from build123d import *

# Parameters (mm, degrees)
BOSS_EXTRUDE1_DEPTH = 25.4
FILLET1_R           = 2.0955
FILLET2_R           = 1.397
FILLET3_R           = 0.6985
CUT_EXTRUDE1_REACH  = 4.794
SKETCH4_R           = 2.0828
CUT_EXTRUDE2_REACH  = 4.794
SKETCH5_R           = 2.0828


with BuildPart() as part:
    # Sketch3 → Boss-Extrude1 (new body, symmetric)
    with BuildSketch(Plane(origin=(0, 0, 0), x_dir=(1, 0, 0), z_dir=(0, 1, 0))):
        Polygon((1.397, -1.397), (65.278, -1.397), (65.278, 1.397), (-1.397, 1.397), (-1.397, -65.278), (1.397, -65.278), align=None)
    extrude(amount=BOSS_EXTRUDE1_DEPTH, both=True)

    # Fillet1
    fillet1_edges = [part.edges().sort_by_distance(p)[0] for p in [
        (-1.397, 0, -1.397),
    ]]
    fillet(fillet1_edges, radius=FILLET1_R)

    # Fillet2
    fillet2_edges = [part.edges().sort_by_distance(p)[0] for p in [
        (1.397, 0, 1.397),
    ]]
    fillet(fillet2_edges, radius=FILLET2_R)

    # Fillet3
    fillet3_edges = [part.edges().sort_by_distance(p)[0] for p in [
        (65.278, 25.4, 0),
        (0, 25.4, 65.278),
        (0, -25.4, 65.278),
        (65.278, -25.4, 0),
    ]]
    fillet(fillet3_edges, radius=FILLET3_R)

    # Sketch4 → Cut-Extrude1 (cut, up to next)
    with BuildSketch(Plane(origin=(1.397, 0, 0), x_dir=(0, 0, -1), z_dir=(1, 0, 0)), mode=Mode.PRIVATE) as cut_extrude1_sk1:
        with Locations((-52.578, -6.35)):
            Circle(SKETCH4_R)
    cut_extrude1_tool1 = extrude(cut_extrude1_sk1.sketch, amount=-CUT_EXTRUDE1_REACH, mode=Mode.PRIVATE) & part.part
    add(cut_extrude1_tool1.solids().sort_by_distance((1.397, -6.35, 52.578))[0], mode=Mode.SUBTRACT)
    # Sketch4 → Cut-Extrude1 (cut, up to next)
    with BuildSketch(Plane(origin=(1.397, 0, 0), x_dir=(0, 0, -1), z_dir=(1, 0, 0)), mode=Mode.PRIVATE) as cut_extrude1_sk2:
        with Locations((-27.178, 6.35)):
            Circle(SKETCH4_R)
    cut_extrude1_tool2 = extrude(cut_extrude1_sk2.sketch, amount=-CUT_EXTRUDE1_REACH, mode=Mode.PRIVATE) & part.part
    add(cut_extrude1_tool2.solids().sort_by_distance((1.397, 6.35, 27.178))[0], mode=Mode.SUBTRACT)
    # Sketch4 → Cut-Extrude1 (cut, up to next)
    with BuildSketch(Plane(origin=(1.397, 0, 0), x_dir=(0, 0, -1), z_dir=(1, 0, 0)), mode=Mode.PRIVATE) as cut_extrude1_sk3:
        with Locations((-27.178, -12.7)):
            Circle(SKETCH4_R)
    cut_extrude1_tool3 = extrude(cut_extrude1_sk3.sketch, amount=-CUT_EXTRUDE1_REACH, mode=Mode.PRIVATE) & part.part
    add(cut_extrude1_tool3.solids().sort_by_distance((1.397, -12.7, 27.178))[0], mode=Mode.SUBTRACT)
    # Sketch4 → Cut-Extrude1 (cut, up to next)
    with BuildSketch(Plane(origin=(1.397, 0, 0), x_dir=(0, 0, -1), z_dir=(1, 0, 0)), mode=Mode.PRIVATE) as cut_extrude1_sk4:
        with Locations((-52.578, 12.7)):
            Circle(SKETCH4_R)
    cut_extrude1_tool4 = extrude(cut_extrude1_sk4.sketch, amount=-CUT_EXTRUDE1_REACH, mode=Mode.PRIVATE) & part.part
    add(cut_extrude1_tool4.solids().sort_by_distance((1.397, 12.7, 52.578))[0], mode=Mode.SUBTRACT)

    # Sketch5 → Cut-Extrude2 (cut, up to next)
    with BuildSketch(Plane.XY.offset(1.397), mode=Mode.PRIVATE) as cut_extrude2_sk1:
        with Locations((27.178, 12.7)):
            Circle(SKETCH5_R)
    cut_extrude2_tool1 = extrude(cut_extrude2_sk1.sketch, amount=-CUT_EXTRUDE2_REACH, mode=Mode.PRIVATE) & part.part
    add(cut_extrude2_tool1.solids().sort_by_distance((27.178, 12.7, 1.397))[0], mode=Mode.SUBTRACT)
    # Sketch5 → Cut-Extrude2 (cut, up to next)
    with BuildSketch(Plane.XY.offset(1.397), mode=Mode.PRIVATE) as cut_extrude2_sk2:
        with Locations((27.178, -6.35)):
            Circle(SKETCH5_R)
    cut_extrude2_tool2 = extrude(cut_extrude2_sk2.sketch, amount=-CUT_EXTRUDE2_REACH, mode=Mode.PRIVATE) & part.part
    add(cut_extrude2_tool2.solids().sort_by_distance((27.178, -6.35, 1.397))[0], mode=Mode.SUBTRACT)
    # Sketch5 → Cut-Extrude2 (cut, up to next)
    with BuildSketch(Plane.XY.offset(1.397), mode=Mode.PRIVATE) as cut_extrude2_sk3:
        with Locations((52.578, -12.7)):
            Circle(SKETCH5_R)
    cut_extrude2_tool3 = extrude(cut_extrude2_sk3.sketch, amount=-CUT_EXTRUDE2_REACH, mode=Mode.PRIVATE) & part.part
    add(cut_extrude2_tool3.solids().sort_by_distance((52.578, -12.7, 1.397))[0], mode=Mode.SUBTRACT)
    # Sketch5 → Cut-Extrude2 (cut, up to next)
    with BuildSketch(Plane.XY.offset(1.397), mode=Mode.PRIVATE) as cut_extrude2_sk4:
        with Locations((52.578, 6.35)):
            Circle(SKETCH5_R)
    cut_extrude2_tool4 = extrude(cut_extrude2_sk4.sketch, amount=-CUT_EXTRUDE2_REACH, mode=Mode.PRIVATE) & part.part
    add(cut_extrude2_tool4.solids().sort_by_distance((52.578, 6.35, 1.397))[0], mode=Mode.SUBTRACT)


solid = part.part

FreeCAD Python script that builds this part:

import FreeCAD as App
import Part
import Sketcher
from FreeCAD import Vector
Q = App.Units.Quantity


def edges_at(feature, points):
    """Names of the edges that pass closest to the given points."""
    edges = feature.Shape.Edges
    near = lambda p: min(range(len(edges)), key=lambda i: edges[i].distToShape(Part.Vertex(*p))[0])
    return sorted({f"Edge{near(p) + 1}" for p in points})


def add_polygon(sketch, points):
    """Adds a closed chain of lines whose ends are joined by coincident constraints."""
    first, n = sketch.GeometryCount, len(points)
    for a, b in zip(points, points[1:] + points[:1]):
        sketch.addGeometry(Part.LineSegment(App.Vector(*a, 0), App.Vector(*b, 0)), False)
    for i in range(n):
        sketch.addConstraint(Sketcher.Constraint("Coincident", first + i, 2, first + (i + 1) % n, 1))

doc = App.newDocument("Part")
body = doc.addObject("PartDesign::Body", "Body")

# Sketch on XZ plane
sketch1 = body.newObject("Sketcher::SketchObject", "Sketch")
sketch1.AttachmentSupport = (doc.getObject("XZ_Plane"), [""])
sketch1.MapMode = "FlatFace"
add_polygon(sketch1, [(1.397, 1.397), (65.278, 1.397), (65.278, -1.397), (-1.397, -1.397), (-1.397, 65.278), (1.397, 65.278)])  # lines 0-5
sketch1.addConstraint(Sketcher.Constraint("Horizontal", 0))
sketch1.addConstraint(Sketcher.Constraint("Vertical", 1))
sketch1.addConstraint(Sketcher.Constraint("Horizontal", 2))
sketch1.addConstraint(Sketcher.Constraint("Vertical", 3))
sketch1.addConstraint(Sketcher.Constraint("Horizontal", 4))
sketch1.addConstraint(Sketcher.Constraint("Vertical", 5))
sketch1.addConstraint(Sketcher.Constraint("Symmetric", 2, 2, 5, 2, -1, 1))
sketch1.addConstraint(Sketcher.Constraint("Equal", 4, 1))
sketch1.addConstraint(Sketcher.Constraint("Equal", 2, 3))
sketch1.addConstraint(Sketcher.Constraint("DistanceX", 4, 1, 4, 2, Q("0.11 in")))
sketch1.addConstraint(Sketcher.Constraint("DistanceX", 0, 1, 0, 2, Q("2.515 in")))
pad1 = body.newObject("PartDesign::Pad", "Pad")
pad1.Profile = sketch1
pad1.Length = Q("2 in")
pad1.Midplane = True
doc.recompute()

fillet = body.newObject("PartDesign::Fillet", "Fillet")
fillet.Base = (pad1, edges_at(pad1, [(-1.397, 0, -1.397)]))
fillet.Radius = Q("0.0825 in")
doc.recompute()

fillet2 = body.newObject("PartDesign::Fillet", "Fillet001")
fillet2.Base = (fillet, edges_at(fillet, [(1.397, 0, 1.397)]))
fillet2.Radius = Q("0.055 in")
doc.recompute()

fillet3 = body.newObject("PartDesign::Fillet", "Fillet002")
fillet3.Base = (fillet2, edges_at(fillet2, [
    (65.278, 25.4, 0),
    (0, 25.4, 65.278),
    (0, -25.4, 65.278),
    (65.278, -25.4, 0),
]))
fillet3.Radius = Q("0.0275 in")

# Sketch on YZ plane
sketch2 = body.newObject("Sketcher::SketchObject", "Sketch001")
sketch2.AttachmentSupport = (doc.getObject("YZ_Plane"), [""])
sketch2.MapMode = "FlatFace"
sketch2.AttachmentOffset = App.Placement(Vector(0, 0, 0.055 * 25.4), App.Rotation())
sketch2.addGeometry(Part.Circle(Vector(-6.35, 52.578, 0), Vector(0, 0, 1), 2.0828), False)
sketch2.addConstraint(Sketcher.Constraint("Diameter", 0, Q("0.164 in")))
sketch2.addConstraint(Sketcher.Constraint("DistanceX", 0, 3, -1, 1, Q("0.25 in")))
sketch2.addConstraint(Sketcher.Constraint("DistanceY", -1, 1, 0, 3, Q("2.07 in")))
pocket1 = body.newObject("PartDesign::Pocket", "Pocket")
pocket1.Profile = sketch2
pocket1.Type = "UpToFirst"

# Sketch on YZ plane
sketch3 = body.newObject("Sketcher::SketchObject", "Sketch002")
sketch3.AttachmentSupport = (doc.getObject("YZ_Plane"), [""])
sketch3.MapMode = "FlatFace"
sketch3.AttachmentOffset = App.Placement(Vector(0, 0, 0.055 * 25.4), App.Rotation())
sketch3.addGeometry(Part.Circle(Vector(6.35, 27.178, 0), Vector(0, 0, 1), 2.0828), False)
sketch3.addConstraint(Sketcher.Constraint("Diameter", 0, Q("0.164 in")))
sketch3.addConstraint(Sketcher.Constraint("DistanceX", -1, 1, 0, 3, Q("0.25 in")))
sketch3.addConstraint(Sketcher.Constraint("DistanceY", -1, 1, 0, 3, Q("1.07 in")))
pocket2 = body.newObject("PartDesign::Pocket", "Pocket001")
pocket2.Profile = sketch3
pocket2.Type = "UpToFirst"

# Sketch on YZ plane
sketch4 = body.newObject("Sketcher::SketchObject", "Sketch003")
sketch4.AttachmentSupport = (doc.getObject("YZ_Plane"), [""])
sketch4.MapMode = "FlatFace"
sketch4.AttachmentOffset = App.Placement(Vector(0, 0, 0.055 * 25.4), App.Rotation())
sketch4.addGeometry(Part.Circle(Vector(-12.7, 27.178, 0), Vector(0, 0, 1), 2.0828), False)
sketch4.addConstraint(Sketcher.Constraint("Diameter", 0, Q("0.164 in")))
sketch4.addConstraint(Sketcher.Constraint("DistanceX", 0, 3, -1, 1, Q("0.5 in")))
sketch4.addConstraint(Sketcher.Constraint("DistanceY", -1, 1, 0, 3, Q("1.07 in")))
pocket3 = body.newObject("PartDesign::Pocket", "Pocket002")
pocket3.Profile = sketch4
pocket3.Type = "UpToFirst"

# Sketch on YZ plane
sketch5 = body.newObject("Sketcher::SketchObject", "Sketch004")
sketch5.AttachmentSupport = (doc.getObject("YZ_Plane"), [""])
sketch5.MapMode = "FlatFace"
sketch5.AttachmentOffset = App.Placement(Vector(0, 0, 0.055 * 25.4), App.Rotation())
sketch5.addGeometry(Part.Circle(Vector(12.7, 52.578, 0), Vector(0, 0, 1), 2.0828), False)
sketch5.addConstraint(Sketcher.Constraint("Diameter", 0, Q("0.164 in")))
sketch5.addConstraint(Sketcher.Constraint("DistanceX", -1, 1, 0, 3, Q("0.5 in")))
sketch5.addConstraint(Sketcher.Constraint("DistanceY", -1, 1, 0, 3, Q("2.07 in")))
pocket4 = body.newObject("PartDesign::Pocket", "Pocket003")
pocket4.Profile = sketch5
pocket4.Type = "UpToFirst"

# Sketch on XY plane
sketch6 = body.newObject("Sketcher::SketchObject", "Sketch005")
sketch6.AttachmentSupport = (doc.getObject("XY_Plane"), [""])
sketch6.MapMode = "FlatFace"
sketch6.AttachmentOffset = App.Placement(Vector(0, 0, 0.055 * 25.4), App.Rotation())
sketch6.addGeometry(Part.Circle(Vector(27.178, 12.7, 0), Vector(0, 0, 1), 2.0828), False)
sketch6.addConstraint(Sketcher.Constraint("Diameter", 0, Q("0.164 in")))
sketch6.addConstraint(Sketcher.Constraint("DistanceY", -1, 1, 0, 3, Q("0.5 in")))
sketch6.addConstraint(Sketcher.Constraint("DistanceX", -1, 1, 0, 3, Q("1.07 in")))
pocket5 = body.newObject("PartDesign::Pocket", "Pocket004")
pocket5.Profile = sketch6
pocket5.Type = "UpToFirst"

# Sketch on XY plane
sketch7 = body.newObject("Sketcher::SketchObject", "Sketch006")
sketch7.AttachmentSupport = (doc.getObject("XY_Plane"), [""])
sketch7.MapMode = "FlatFace"
sketch7.AttachmentOffset = App.Placement(Vector(0, 0, 0.055 * 25.4), App.Rotation())
sketch7.addGeometry(Part.Circle(Vector(27.178, -6.35, 0), Vector(0, 0, 1), 2.0828), False)
sketch7.addConstraint(Sketcher.Constraint("Diameter", 0, Q("0.164 in")))
sketch7.addConstraint(Sketcher.Constraint("DistanceX", -1, 1, 0, 3, Q("1.07 in")))
sketch7.addConstraint(Sketcher.Constraint("DistanceY", 0, 3, -1, 1, Q("0.25 in")))
pocket6 = body.newObject("PartDesign::Pocket", "Pocket005")
pocket6.Profile = sketch7
pocket6.Type = "UpToFirst"

# Sketch on XY plane
sketch8 = body.newObject("Sketcher::SketchObject", "Sketch007")
sketch8.AttachmentSupport = (doc.getObject("XY_Plane"), [""])
sketch8.MapMode = "FlatFace"
sketch8.AttachmentOffset = App.Placement(Vector(0, 0, 0.055 * 25.4), App.Rotation())
sketch8.addGeometry(Part.Circle(Vector(52.578, -12.7, 0), Vector(0, 0, 1), 2.0828), False)
sketch8.addConstraint(Sketcher.Constraint("Diameter", 0, Q("0.164 in")))
sketch8.addConstraint(Sketcher.Constraint("DistanceY", 0, 3, -1, 1, Q("0.5 in")))
sketch8.addConstraint(Sketcher.Constraint("DistanceX", -1, 1, 0, 3, Q("2.07 in")))
pocket7 = body.newObject("PartDesign::Pocket", "Pocket006")
pocket7.Profile = sketch8
pocket7.Type = "UpToFirst"

# Sketch on XY plane
sketch9 = body.newObject("Sketcher::SketchObject", "Sketch008")
sketch9.AttachmentSupport = (doc.getObject("XY_Plane"), [""])
sketch9.MapMode = "FlatFace"
sketch9.AttachmentOffset = App.Placement(Vector(0, 0, 0.055 * 25.4), App.Rotation())
sketch9.addGeometry(Part.Circle(Vector(52.578, 6.35, 0), Vector(0, 0, 1), 2.0828), False)
sketch9.addConstraint(Sketcher.Constraint("Diameter", 0, Q("0.164 in")))
sketch9.addConstraint(Sketcher.Constraint("DistanceX", -1, 1, 0, 3, Q("2.07 in")))
sketch9.addConstraint(Sketcher.Constraint("DistanceY", -1, 1, 0, 3, Q("0.25 in")))
pocket8 = body.newObject("PartDesign::Pocket", "Pocket007")
pocket8.Profile = sketch9
pocket8.Type = "UpToFirst"

doc.recompute()
